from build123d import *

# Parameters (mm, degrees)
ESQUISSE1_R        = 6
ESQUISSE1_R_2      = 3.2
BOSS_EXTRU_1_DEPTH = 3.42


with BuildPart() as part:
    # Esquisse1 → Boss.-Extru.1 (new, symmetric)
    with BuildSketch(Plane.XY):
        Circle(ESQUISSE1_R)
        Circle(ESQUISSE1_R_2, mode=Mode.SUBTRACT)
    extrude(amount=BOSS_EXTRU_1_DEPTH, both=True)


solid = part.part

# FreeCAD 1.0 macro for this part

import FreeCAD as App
import Part
import Sketcher
from FreeCAD import Vector

doc = App.newDocument("Part")
body = doc.addObject("PartDesign::Body", "Body")

sketch1 = body.newObject("Sketcher::SketchObject", "Sketch")
sketch1.AttachmentSupport = (doc.getObject("XY_Plane"), [""])
sketch1.MapMode = "FlatFace"
sketch1.addGeometry([
    Part.Circle(Vector(0, 0, 0), Vector(0, 0, 1), 6),
    Part.Circle(Vector(0, 0, 0), Vector(0, 0, 1), 3.2),
], False)
sketch1.addConstraint([
    Sketcher.Constraint("Coincident", 0, 3, -1, 1),
    Sketcher.Constraint("Coincident", 1, 3, -1, 1),
    Sketcher.Constraint("Diameter", 0, 12.0),
    Sketcher.Constraint("Diameter", 1, 6.4),
])
pad1 = body.newObject("PartDesign::Pad", "Pad")
pad1.Profile = sketch1
pad1.Length = 6.84
pad1.Midplane = True

doc.recompute()
